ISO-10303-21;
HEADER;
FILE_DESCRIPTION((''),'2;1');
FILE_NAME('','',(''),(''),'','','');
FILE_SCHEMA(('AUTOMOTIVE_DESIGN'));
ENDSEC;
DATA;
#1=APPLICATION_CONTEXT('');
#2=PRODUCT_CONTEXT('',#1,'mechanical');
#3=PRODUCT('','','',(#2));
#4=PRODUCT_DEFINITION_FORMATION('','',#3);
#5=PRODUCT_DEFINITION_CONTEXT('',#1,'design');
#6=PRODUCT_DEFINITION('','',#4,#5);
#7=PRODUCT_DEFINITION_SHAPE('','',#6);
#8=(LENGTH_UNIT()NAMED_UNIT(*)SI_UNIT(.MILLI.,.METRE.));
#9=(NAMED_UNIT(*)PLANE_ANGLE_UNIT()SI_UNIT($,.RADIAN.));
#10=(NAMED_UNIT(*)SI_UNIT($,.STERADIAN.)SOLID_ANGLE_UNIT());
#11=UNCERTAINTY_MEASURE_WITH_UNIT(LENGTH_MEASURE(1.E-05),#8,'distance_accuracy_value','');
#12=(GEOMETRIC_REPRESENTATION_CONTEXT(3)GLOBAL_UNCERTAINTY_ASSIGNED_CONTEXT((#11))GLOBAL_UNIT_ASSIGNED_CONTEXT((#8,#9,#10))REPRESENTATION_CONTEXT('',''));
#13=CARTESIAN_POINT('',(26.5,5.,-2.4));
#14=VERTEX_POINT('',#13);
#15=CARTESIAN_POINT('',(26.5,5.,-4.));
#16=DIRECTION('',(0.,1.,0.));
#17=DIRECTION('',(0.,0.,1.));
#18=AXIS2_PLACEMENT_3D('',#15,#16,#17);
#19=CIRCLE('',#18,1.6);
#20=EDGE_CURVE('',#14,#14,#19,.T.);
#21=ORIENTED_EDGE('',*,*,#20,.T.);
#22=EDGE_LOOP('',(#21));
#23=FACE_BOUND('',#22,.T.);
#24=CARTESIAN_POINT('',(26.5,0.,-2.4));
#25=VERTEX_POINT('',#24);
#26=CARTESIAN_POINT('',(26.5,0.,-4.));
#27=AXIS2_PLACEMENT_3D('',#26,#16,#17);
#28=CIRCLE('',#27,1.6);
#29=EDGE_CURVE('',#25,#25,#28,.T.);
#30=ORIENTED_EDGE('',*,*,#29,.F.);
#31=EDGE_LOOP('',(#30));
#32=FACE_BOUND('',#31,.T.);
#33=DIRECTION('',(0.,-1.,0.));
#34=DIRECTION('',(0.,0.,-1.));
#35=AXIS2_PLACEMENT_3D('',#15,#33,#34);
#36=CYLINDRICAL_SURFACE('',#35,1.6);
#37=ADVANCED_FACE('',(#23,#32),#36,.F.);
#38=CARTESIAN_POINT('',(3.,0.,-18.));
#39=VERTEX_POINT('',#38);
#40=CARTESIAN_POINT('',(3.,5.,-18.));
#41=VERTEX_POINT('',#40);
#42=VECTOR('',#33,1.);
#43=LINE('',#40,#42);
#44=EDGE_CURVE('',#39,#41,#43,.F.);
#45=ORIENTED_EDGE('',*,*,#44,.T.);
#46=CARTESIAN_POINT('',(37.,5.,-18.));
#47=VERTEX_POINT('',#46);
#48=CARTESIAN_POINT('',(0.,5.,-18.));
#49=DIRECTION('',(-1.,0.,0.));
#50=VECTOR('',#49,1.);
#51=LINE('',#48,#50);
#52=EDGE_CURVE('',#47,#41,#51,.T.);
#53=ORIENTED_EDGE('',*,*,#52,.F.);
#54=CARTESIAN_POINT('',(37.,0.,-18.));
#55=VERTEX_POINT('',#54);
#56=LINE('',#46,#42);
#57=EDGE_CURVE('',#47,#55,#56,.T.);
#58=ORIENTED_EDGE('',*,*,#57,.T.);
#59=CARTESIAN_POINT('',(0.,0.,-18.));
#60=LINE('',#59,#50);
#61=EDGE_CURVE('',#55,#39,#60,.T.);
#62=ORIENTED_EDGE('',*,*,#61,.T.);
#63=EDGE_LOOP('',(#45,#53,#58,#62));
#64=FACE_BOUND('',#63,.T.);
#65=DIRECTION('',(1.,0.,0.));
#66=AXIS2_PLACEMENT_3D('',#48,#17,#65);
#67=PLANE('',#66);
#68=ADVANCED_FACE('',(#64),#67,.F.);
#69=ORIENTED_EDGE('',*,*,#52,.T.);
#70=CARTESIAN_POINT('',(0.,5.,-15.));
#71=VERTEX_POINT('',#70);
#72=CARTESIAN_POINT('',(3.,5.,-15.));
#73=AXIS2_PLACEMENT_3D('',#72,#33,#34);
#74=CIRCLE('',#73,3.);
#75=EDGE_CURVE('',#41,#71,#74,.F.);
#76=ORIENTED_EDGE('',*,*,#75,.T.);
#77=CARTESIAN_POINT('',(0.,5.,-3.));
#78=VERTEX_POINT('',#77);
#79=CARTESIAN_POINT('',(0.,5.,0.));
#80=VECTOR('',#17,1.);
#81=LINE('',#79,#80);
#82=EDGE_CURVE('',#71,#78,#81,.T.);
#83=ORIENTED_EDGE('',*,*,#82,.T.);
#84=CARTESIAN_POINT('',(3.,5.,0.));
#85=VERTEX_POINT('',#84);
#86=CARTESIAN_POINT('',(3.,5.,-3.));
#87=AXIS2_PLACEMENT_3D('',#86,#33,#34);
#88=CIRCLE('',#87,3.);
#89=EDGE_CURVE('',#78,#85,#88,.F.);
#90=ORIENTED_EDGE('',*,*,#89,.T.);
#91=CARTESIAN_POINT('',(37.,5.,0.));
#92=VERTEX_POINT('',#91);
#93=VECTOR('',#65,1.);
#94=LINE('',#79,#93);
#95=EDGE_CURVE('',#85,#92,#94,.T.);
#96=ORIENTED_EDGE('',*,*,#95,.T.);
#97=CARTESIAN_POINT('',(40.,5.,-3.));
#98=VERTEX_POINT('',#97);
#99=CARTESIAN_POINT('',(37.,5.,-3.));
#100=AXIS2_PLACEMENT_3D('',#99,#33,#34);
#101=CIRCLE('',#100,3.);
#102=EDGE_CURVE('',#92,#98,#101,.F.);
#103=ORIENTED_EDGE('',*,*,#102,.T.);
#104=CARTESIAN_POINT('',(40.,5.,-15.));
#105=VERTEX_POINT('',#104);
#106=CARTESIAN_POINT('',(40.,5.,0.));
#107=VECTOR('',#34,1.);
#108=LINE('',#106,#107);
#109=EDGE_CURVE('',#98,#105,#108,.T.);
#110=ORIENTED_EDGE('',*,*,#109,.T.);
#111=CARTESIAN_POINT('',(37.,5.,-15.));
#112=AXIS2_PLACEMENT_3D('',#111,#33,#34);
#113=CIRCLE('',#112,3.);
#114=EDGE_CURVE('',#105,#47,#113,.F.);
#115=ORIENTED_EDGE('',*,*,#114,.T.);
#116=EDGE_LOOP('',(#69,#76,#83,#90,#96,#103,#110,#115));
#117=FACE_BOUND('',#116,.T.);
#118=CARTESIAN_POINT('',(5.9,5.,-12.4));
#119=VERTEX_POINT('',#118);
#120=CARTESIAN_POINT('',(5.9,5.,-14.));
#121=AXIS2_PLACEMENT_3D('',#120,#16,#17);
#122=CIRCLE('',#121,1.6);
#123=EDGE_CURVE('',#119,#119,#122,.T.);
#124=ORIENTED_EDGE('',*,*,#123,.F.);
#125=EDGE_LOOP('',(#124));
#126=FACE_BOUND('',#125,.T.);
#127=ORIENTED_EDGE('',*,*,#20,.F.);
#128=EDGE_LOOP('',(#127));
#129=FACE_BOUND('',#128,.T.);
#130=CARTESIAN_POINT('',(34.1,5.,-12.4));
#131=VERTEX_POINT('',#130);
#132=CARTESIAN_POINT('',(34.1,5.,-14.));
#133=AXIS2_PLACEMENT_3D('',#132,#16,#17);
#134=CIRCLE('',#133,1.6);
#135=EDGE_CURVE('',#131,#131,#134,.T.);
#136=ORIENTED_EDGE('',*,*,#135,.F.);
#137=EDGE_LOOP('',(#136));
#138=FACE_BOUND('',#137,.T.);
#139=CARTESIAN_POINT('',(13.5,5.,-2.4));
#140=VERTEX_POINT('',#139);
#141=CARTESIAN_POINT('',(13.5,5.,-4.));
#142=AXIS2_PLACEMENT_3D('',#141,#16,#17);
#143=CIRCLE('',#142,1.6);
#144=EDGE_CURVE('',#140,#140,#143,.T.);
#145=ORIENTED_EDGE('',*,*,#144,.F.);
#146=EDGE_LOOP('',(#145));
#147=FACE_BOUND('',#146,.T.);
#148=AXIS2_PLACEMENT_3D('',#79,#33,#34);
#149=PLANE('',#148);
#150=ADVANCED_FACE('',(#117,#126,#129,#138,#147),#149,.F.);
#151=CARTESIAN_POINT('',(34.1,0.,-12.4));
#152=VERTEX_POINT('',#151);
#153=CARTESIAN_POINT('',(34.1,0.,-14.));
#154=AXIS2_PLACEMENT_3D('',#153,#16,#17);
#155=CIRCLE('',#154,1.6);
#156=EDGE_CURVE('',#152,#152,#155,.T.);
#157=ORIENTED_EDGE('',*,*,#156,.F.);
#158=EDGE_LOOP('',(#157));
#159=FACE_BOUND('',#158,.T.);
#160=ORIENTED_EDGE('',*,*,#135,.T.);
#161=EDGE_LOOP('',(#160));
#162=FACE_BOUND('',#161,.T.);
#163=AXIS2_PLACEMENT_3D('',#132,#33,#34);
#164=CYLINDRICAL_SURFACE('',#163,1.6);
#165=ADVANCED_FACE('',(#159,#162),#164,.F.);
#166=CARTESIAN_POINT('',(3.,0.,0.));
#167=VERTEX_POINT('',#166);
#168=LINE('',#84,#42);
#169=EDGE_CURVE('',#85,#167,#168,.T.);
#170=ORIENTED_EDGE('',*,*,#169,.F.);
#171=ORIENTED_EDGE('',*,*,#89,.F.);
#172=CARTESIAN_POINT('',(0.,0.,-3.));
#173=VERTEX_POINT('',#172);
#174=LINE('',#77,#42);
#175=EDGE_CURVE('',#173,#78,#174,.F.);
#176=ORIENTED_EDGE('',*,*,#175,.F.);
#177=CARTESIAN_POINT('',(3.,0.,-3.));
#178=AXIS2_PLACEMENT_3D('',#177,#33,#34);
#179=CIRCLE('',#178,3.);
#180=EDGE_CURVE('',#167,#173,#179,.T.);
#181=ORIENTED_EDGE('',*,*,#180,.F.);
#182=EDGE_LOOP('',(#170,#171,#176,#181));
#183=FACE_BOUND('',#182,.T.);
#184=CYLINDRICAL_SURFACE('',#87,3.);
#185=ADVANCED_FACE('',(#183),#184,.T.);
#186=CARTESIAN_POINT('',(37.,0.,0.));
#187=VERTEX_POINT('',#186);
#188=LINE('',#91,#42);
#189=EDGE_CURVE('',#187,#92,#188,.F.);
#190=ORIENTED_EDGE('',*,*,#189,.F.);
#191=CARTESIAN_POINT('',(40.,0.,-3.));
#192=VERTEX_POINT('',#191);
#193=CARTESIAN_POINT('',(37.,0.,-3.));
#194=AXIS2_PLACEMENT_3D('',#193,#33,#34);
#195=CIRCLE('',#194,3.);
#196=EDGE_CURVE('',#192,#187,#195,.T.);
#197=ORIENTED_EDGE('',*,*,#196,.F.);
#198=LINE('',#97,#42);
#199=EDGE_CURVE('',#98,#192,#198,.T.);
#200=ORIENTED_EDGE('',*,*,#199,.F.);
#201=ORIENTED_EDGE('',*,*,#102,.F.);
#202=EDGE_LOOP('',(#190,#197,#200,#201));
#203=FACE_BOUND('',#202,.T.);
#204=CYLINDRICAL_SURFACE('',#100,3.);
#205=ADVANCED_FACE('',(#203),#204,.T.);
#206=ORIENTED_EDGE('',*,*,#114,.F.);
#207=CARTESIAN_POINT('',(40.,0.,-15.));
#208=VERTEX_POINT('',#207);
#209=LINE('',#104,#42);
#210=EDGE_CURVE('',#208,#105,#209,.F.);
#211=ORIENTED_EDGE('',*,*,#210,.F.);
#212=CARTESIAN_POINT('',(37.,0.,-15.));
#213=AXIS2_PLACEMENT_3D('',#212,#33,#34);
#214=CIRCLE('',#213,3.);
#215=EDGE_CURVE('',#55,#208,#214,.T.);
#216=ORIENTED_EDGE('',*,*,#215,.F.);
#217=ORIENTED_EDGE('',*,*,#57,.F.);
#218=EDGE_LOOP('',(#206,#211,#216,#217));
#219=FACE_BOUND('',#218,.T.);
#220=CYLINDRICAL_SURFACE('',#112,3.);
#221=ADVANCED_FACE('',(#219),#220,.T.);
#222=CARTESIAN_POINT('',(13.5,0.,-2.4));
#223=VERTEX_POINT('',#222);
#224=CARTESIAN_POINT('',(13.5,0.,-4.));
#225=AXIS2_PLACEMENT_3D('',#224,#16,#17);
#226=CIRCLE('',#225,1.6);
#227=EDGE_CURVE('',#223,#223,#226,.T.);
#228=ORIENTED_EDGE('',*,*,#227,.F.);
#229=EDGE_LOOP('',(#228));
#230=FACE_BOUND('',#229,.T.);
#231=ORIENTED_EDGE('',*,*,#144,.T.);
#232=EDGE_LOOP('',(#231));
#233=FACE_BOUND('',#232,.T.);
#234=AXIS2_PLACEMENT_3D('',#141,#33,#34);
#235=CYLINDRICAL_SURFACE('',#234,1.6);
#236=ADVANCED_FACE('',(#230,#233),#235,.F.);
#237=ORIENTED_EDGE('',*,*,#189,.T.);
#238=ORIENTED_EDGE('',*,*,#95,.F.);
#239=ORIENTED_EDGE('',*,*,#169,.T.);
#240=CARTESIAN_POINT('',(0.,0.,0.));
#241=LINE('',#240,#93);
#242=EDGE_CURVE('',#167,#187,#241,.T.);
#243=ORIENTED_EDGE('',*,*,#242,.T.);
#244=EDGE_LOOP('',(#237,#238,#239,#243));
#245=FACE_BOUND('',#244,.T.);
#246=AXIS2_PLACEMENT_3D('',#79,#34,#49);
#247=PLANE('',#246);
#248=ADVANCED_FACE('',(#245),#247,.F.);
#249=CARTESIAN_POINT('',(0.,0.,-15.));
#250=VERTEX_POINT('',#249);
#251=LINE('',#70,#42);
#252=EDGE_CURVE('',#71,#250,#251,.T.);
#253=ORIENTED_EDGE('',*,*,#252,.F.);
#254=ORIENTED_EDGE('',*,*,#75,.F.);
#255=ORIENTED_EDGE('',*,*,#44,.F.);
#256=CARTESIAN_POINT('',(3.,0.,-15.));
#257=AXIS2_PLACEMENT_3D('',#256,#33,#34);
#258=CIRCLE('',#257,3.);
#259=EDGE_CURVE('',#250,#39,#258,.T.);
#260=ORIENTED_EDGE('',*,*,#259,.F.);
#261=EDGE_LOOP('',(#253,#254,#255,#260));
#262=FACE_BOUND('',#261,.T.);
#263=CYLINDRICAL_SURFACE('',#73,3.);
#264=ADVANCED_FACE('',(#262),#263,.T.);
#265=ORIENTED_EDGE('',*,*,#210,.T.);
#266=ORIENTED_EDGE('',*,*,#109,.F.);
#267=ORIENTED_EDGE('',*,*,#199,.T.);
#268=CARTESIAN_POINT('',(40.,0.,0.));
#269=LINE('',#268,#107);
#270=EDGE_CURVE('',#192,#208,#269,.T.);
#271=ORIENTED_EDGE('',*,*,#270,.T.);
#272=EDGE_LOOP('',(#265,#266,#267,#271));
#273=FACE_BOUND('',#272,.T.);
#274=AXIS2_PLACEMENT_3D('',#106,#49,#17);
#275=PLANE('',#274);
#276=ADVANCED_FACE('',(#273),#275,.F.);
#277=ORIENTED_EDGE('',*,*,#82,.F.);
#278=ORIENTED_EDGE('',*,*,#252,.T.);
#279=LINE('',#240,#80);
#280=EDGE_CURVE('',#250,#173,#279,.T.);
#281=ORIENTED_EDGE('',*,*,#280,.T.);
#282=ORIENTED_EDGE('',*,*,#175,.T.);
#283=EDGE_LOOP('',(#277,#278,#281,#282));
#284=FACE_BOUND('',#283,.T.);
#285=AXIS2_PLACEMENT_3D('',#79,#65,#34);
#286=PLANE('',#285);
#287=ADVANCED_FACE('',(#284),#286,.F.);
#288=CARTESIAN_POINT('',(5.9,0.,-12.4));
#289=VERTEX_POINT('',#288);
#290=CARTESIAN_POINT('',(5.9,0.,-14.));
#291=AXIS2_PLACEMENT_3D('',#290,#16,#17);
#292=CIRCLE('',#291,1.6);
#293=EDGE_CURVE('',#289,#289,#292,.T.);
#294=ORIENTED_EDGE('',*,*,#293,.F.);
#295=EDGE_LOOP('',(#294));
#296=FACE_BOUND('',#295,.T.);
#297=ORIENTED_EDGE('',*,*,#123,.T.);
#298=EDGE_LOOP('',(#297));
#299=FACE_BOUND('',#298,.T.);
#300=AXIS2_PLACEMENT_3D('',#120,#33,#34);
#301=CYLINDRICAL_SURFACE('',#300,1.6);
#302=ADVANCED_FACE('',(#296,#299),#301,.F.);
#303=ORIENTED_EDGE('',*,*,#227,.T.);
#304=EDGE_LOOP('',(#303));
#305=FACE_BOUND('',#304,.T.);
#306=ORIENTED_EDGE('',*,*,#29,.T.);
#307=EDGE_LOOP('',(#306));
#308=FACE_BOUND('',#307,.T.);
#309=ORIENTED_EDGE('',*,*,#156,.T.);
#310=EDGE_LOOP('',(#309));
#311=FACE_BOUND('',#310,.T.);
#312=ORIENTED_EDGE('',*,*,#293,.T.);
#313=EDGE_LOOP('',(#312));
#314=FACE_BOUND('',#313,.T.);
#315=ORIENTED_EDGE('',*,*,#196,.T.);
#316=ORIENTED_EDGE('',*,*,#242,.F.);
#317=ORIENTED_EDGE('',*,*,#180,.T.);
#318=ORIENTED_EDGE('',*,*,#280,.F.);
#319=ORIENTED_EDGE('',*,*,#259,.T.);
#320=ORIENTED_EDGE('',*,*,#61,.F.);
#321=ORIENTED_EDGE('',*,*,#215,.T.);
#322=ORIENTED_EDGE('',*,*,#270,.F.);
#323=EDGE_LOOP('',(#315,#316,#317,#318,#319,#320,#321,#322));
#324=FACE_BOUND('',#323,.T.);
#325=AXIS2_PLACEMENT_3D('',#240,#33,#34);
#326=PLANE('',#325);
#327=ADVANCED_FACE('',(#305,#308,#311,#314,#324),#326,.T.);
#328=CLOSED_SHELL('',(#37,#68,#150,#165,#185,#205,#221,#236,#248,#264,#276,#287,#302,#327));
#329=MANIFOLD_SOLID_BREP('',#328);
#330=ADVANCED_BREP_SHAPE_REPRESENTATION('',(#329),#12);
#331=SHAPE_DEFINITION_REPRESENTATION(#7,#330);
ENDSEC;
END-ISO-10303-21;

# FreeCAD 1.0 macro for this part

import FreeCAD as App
import Part
import Sketcher


def edges_at(feature, points):
    """Names of the edges that pass closest to the given points."""
    edges = feature.Shape.Edges
    near = lambda p: min(range(len(edges)), key=lambda i: edges[i].distToShape(Part.Vertex(*p))[0])
    return sorted({f"Edge{near(p) + 1}" for p in points})


def add_polygon(sketch, points):
    """Adds a closed chain of lines whose ends are joined by coincident constraints."""
    first, n = sketch.GeometryCount, len(points)
    for a, b in zip(points, points[1:] + points[:1]):
        sketch.addGeometry(Part.LineSegment(App.Vector(*a, 0), App.Vector(*b, 0)), False)
    for i in range(n):
        sketch.addConstraint(Sketcher.Constraint("Coincident", first + i, 2, first + (i + 1) % n, 1))

doc = App.newDocument("Part")
body = doc.addObject("PartDesign::Body", "Body")

# Sketch on XZ plane
sketch1 = doc.addObject("Sketcher::SketchObject", "Sketch")
body.addObject(sketch1)
sketch1.AttachmentSupport = (doc.XZ_Plane, [""])
sketch1.MapMode = "FlatFace"
add_polygon(sketch1, [(0, -18), (0, 0), (40, 0), (40, -18)])  # lines 0-3
sketch1.addGeometry(Part.Circle(App.Vector(13.5, -4, 0), App.Vector(0, 0, 1), 1.6), False)  # 4
sketch1.addGeometry(Part.Circle(App.Vector(26.5, -4, 0), App.Vector(0, 0, 1), 1.6), False)  # 5
sketch1.addGeometry(Part.Circle(App.Vector(5.9, -14, 0), App.Vector(0, 0, 1), 1.6), False)  # 6
sketch1.addGeometry(Part.Circle(App.Vector(34.1, -14, 0), App.Vector(0, 0, 1), 1.6), False)  # 7
sketch1.addConstraint([
    Sketcher.Constraint("Vertical", 0),
    Sketcher.Constraint("Horizontal", 1),
    Sketcher.Constraint("Vertical", 2),
    Sketcher.Constraint("Horizontal", 3),
    Sketcher.Constraint("Coincident", 0, 2, -1, 1),
    Sketcher.Constraint("Equal", 4, 5),
    Sketcher.Constraint("Equal", 5, 6),
    Sketcher.Constraint("Equal", 6, 7),
    Sketcher.Constraint("Horizontal", 4, 3, 5, 3),
    Sketcher.Constraint("Horizontal", 6, 3, 7, 3),
    Sketcher.Constraint("Diameter", 4, 3.2),
    Sketcher.Constraint("DistanceX", 1, 1, 1, 2, 40.0),
    Sketcher.Constraint("DistanceY", 0, 1, 0, 2, 18.0),
    Sketcher.Constraint("DistanceY", 4, 3, -1, 1, 4.0),
    Sketcher.Constraint("DistanceY", 6, 3, -1, 1, 14.0),
    Sketcher.Constraint("DistanceX", 4, 3, 5, 3, 13.0),
    Sketcher.Constraint("DistanceX", -1, 1, 4, 3, 13.5),
    Sketcher.Constraint("DistanceX", -1, 1, 6, 3, 5.9),
    Sketcher.Constraint("DistanceX", -1, 1, 7, 3, 34.1),
])
pad1 = doc.addObject("PartDesign::Pad", "Pad")
body.addObject(pad1)
pad1.Profile = sketch1
pad1.Length = 5
pad1.Reversed = True
doc.recompute()

fillet = doc.addObject("PartDesign::Fillet", "Fillet")
body.addObject(fillet)
fillet.Base = (pad1, edges_at(pad1, [
    (0, 2.5, -18),
    (40, 2.5, -18),
    (40, 2.5, 0),
    (0, 2.5, 0),
]))
fillet.Radius = 3

doc.recompute()
